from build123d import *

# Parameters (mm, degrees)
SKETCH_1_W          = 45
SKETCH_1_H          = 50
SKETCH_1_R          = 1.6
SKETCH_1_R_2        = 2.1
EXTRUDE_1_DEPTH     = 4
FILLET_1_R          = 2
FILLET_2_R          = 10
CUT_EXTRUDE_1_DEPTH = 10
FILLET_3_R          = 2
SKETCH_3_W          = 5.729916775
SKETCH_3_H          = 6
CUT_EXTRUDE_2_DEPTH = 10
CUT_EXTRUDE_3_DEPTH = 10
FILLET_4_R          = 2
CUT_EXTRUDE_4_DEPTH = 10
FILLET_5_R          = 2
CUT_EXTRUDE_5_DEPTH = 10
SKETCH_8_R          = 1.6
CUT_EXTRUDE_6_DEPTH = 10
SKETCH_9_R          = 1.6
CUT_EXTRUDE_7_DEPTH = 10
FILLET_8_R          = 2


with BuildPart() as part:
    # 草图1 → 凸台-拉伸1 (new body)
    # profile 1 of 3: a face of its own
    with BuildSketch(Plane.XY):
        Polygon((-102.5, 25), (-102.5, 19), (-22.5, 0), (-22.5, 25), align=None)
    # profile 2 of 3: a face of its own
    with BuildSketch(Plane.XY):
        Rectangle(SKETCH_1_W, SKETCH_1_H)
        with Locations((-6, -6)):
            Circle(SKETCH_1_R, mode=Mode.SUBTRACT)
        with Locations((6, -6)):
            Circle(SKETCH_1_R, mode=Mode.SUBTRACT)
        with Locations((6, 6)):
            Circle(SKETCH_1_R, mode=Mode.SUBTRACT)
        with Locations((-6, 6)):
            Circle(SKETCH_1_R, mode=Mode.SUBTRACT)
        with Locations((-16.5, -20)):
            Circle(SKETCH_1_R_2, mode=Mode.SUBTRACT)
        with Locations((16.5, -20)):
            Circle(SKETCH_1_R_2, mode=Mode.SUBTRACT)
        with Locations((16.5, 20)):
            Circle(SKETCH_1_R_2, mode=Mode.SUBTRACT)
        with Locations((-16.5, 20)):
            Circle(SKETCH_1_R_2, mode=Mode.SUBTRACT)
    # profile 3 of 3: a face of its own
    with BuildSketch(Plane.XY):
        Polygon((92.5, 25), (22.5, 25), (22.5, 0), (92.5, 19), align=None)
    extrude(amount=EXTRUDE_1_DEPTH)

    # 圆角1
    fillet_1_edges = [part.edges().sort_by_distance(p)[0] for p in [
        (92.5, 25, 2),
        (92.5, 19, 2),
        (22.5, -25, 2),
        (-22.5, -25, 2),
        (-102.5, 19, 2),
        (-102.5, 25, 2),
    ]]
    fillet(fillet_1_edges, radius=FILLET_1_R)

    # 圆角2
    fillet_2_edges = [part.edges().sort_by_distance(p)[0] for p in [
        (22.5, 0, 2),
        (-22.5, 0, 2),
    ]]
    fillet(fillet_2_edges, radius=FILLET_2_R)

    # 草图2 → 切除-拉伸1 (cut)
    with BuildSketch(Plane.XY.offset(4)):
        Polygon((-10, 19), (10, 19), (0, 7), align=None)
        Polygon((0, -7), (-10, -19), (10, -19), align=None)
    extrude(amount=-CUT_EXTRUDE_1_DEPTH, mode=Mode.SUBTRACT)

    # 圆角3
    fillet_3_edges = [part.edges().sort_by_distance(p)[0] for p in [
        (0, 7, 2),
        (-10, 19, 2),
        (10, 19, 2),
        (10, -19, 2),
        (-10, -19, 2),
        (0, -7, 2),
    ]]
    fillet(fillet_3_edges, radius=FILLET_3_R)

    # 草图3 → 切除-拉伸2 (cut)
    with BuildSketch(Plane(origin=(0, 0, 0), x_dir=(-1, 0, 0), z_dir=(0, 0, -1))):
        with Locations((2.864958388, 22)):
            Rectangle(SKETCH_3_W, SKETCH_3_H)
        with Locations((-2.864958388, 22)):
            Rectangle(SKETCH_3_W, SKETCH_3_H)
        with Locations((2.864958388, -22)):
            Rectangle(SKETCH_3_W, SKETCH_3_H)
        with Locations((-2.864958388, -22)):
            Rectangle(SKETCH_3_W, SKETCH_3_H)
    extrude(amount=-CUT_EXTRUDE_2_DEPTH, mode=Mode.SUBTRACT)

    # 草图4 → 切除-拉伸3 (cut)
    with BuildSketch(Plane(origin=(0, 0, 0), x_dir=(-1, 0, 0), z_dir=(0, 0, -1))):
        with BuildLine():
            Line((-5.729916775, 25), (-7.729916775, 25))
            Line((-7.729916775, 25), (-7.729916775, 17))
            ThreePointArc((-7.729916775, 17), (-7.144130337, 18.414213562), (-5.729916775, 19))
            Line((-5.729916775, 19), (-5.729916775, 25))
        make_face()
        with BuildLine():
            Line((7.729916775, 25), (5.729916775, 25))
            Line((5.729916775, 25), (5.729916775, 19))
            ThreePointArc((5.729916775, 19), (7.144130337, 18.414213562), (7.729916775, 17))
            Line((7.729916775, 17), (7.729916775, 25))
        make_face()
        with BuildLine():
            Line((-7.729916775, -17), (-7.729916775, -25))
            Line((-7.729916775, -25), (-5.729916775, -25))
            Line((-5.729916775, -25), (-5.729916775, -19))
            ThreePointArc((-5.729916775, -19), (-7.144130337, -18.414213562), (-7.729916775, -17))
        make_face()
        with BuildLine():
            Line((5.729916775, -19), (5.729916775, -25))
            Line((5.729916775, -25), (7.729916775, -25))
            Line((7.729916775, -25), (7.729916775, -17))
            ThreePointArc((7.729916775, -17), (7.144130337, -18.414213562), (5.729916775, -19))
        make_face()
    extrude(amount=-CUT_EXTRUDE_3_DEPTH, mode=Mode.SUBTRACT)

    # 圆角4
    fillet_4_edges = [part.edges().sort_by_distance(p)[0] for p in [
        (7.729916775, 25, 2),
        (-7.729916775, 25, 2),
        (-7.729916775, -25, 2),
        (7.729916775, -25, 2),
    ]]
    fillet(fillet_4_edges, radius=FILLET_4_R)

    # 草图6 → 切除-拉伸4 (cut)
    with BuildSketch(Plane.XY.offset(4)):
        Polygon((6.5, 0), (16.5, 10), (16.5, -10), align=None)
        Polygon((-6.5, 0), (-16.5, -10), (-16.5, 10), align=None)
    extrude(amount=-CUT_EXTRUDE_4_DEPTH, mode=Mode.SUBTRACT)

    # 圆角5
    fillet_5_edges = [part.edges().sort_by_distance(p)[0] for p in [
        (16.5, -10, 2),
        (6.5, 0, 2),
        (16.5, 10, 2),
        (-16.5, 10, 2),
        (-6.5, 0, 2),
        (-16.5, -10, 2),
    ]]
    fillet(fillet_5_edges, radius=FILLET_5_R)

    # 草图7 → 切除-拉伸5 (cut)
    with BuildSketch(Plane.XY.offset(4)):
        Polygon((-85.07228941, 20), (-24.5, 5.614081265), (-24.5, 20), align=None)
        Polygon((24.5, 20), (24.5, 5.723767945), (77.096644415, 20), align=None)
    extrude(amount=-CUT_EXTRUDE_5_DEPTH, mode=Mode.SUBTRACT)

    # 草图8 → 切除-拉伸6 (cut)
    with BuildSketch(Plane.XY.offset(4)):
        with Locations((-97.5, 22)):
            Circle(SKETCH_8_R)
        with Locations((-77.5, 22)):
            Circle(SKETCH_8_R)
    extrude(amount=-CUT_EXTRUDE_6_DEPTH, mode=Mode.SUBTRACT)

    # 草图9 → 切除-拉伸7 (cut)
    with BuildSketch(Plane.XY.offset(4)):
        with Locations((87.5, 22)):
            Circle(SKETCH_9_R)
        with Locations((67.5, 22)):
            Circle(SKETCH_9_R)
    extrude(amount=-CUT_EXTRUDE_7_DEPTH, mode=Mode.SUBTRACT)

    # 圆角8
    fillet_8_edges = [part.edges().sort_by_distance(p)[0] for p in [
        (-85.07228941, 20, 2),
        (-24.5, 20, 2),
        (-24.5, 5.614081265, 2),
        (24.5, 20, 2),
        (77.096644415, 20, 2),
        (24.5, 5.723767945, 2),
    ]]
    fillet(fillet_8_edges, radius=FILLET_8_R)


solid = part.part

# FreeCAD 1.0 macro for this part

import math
import FreeCAD as App
import Part
import Sketcher


def edges_at(feature, points):
    """Names of the edges that pass closest to the given points."""
    edges = feature.Shape.Edges
    near = lambda p: min(range(len(edges)), key=lambda i: edges[i].distToShape(Part.Vertex(*p))[0])
    return sorted({f"Edge{near(p) + 1}" for p in points})

doc = App.newDocument("Part")
body = doc.addObject("PartDesign::Body", "Body")

# Sketch on XY plane
sketch1 = doc.addObject("Sketcher::SketchObject", "Sketch")
body.addObject(sketch1)
sketch1.AttachmentSupport = (doc.XY_Plane, [""])
sketch1.MapMode = "FlatFace"
sketch1.addGeometry([
    Part.LineSegment(App.Vector(-102.5, 25, 0), App.Vector(-102.5, 19, 0)),  # 0
    Part.LineSegment(App.Vector(-102.5, 19, 0), App.Vector(-22.5, 0, 0)),  # 1
    Part.LineSegment(App.Vector(-22.5, 0, 0), App.Vector(-22.5, -25, 0)),  # 2
    Part.LineSegment(App.Vector(-22.5, -25, 0), App.Vector(22.5, -25, 0)),  # 3
    Part.LineSegment(App.Vector(22.5, -25, 0), App.Vector(22.5, 0, 0)),  # 4
    Part.LineSegment(App.Vector(22.5, 0, 0), App.Vector(92.5, 19, 0)),  # 5
    Part.LineSegment(App.Vector(92.5, 19, 0), App.Vector(92.5, 25, 0)),  # 6
    Part.LineSegment(App.Vector(92.5, 25, 0), App.Vector(-102.5, 25, 0)),  # 7
    Part.Circle(App.Vector(16.5, 20, 0), App.Vector(0, 0, 1), 2.1),  # 8
    Part.Circle(App.Vector(-16.5, -20, 0), App.Vector(0, 0, 1), 2.1),  # 9
    Part.Circle(App.Vector(-6, -6, 0), App.Vector(0, 0, 1), 1.6),  # 10
    Part.Circle(App.Vector(16.5, -20, 0), App.Vector(0, 0, 1), 2.1),  # 11
    Part.Circle(App.Vector(6, -6, 0), App.Vector(0, 0, 1), 1.6),  # 12
    Part.Circle(App.Vector(-6, 6, 0), App.Vector(0, 0, 1), 1.6),  # 13
    Part.Circle(App.Vector(-16.5, 20, 0), App.Vector(0, 0, 1), 2.1),  # 14
    Part.Circle(App.Vector(6, 6, 0), App.Vector(0, 0, 1), 1.6),  # 15
], False)
sketch1.addConstraint([
    Sketcher.Constraint("Coincident", 0, 2, 1, 1),
    Sketcher.Constraint("Coincident", 1, 2, 2, 1),
    Sketcher.Constraint("Coincident", 2, 2, 3, 1),
    Sketcher.Constraint("Coincident", 3, 2, 4, 1),
    Sketcher.Constraint("Coincident", 4, 2, 5, 1),
    Sketcher.Constraint("Coincident", 5, 2, 6, 1),
    Sketcher.Constraint("Coincident", 6, 2, 7, 1),
    Sketcher.Constraint("Coincident", 7, 2, 0, 1),
    Sketcher.Constraint("Vertical", 0),
    Sketcher.Constraint("Vertical", 2),
    Sketcher.Constraint("Horizontal", 3),
    Sketcher.Constraint("Vertical", 4),
    Sketcher.Constraint("Vertical", 6),
    Sketcher.Constraint("Horizontal", 7),
    Sketcher.Constraint("Equal", 8, 9),
    Sketcher.Constraint("Equal", 9, 11),
    Sketcher.Constraint("Equal", 10, 12),
    Sketcher.Constraint("Equal", 12, 13),
    Sketcher.Constraint("Equal", 11, 14),
    Sketcher.Constraint("Equal", 13, 15),
    Sketcher.Constraint("Symmetric", 8, 3, 9, 3, -1, 1),
    Sketcher.Constraint("Symmetric", 12, 3, 13, 3, -1, 1),
    Sketcher.Constraint("Symmetric", 11, 3, 14, 3, -1, 1),
    Sketcher.Constraint("Symmetric", 10, 3, 15, 3, -1, 1),
    Sketcher.Constraint("Symmetric", 1, 2, 4, 2, -1, 1),
    Sketcher.Constraint("Symmetric", 9, 3, 11, 3, -2),
    Sketcher.Constraint("Symmetric", 10, 3, 12, 3, -2),
    Sketcher.Constraint("PointOnObject", 1, 2, -1),
    Sketcher.Constraint("Horizontal", 0, 2, 5, 2),
    Sketcher.Constraint("Diameter", 8, 4.2),
    Sketcher.Constraint("Diameter", 10, 3.2),
    Sketcher.Constraint("DistanceX", 3, 1, 3, 2, 45.0),
    Sketcher.Constraint("DistanceX", 7, 2, 7, 1, 195.0),
    Sketcher.Constraint("DistanceY", 0, 2, 0, 1, 6.0),
    Sketcher.Constraint("DistanceY", 2, 2, 2, 1, 25.0),
    Sketcher.Constraint("DistanceY", -1, 1, 8, 3, 20.0),
    Sketcher.Constraint("DistanceX", 10, 3, -1, 1, 6.0),
    Sketcher.Constraint("DistanceY", 10, 3, -1, 1, 6.0),
    Sketcher.Constraint("DistanceY", -1, 1, 0, 2, 19.0),
    Sketcher.Constraint("DistanceX", 9, 3, 8, 3, 33.0),
    Sketcher.Constraint("DistanceX", 0, 2, 14, 3, 86.0),
])
pad1 = doc.addObject("PartDesign::Pad", "Pad")
body.addObject(pad1)
pad1.Profile = sketch1
pad1.Length = 4
doc.recompute()

fillet = doc.addObject("PartDesign::Fillet", "Fillet")
body.addObject(fillet)
fillet.Base = (pad1, edges_at(pad1, [
    (92.5, 25, 2),
    (92.5, 19, 2),
    (22.5, -25, 2),
    (-22.5, -25, 2),
    (-102.5, 19, 2),
    (-102.5, 25, 2),
]))
fillet.Radius = 2
doc.recompute()

fillet2 = doc.addObject("PartDesign::Fillet", "Fillet001")
body.addObject(fillet2)
fillet2.Base = (fillet, edges_at(fillet, [(22.5, 0, 2), (-22.5, 0, 2)]))
fillet2.Radius = 10

# Sketch on XY plane
sketch2 = doc.addObject("Sketcher::SketchObject", "Sketch001")
body.addObject(sketch2)
sketch2.AttachmentSupport = (doc.XY_Plane, [""])
sketch2.MapMode = "FlatFace"
sketch2.AttachmentOffset = App.Placement(App.Vector(0, 0, 4), App.Rotation())
sketch2.addGeometry([
    Part.LineSegment(App.Vector(10, 19, 0), App.Vector(-10, 19, 0)),  # 0
    Part.LineSegment(App.Vector(-10, 19, 0), App.Vector(0, 7, 0)),  # 1
    Part.LineSegment(App.Vector(0, 7, 0), App.Vector(10, 19, 0)),  # 2
    Part.LineSegment(App.Vector(0, -7, 0), App.Vector(-10, -19, 0)),  # 3
    Part.LineSegment(App.Vector(-10, -19, 0), App.Vector(10, -19, 0)),  # 4
    Part.LineSegment(App.Vector(10, -19, 0), App.Vector(0, -7, 0)),  # 5
], False)
sketch2.addConstraint([
    Sketcher.Constraint("Coincident", 0, 2, 1, 1),
    Sketcher.Constraint("Coincident", 1, 2, 2, 1),
    Sketcher.Constraint("Coincident", 2, 2, 0, 1),
    Sketcher.Constraint("Coincident", 3, 2, 4, 1),
    Sketcher.Constraint("Coincident", 4, 2, 5, 1),
    Sketcher.Constraint("Coincident", 5, 2, 3, 1),
    Sketcher.Constraint("Horizontal", 0),
    Sketcher.Constraint("Horizontal", 4),
    Sketcher.Constraint("Symmetric", 2, 2, 3, 2, -1, 1),
    Sketcher.Constraint("Symmetric", 1, 2, 5, 2, -1, 1),
    Sketcher.Constraint("PointOnObject", 1, 2, -2),
    Sketcher.Constraint("Parallel", 1, 5),
    Sketcher.Constraint("Vertical", 0, 2, 3, 2),
    Sketcher.Constraint("DistanceX", 0, 2, 0, 1, 20.0),
    Sketcher.Constraint("DistanceY", -1, 1, 0, 2, 19.0),
    Sketcher.Constraint("DistanceY", -1, 1, 1, 2, 7.0),
])
pocket1 = doc.addObject("PartDesign::Pocket", "Pocket")
body.addObject(pocket1)
pocket1.Profile = sketch2
pocket1.Length = 10
doc.recompute()

fillet3 = doc.addObject("PartDesign::Fillet", "Fillet002")
body.addObject(fillet3)
fillet3.Base = (pocket1, edges_at(pocket1, [
    (0, 7, 2),
    (-10, 19, 2),
    (10, 19, 2),
    (10, -19, 2),
    (-10, -19, 2),
    (0, -7, 2),
]))
fillet3.Radius = 2

# Sketch on XY plane
sketch3 = doc.addObject("Sketcher::SketchObject", "Sketch002")
body.addObject(sketch3)
sketch3.AttachmentSupport = (doc.XY_Plane, [""])
sketch3.MapMode = "FlatFace"
sketch3.addGeometry([
    Part.LineSegment(App.Vector(-5.729917, 19, 0), App.Vector(-5.729917, 25, 0)),  # 0
    Part.LineSegment(App.Vector(-5.729917, 25, 0), App.Vector(5.729917, 25, 0)),  # 1
    Part.LineSegment(App.Vector(5.729917, 25, 0), App.Vector(5.729917, 19, 0)),  # 2
    Part.LineSegment(App.Vector(5.729917, 19, 0), App.Vector(-5.729917, 19, 0)),  # 3
    Part.LineSegment(App.Vector(-5.729917, -25, 0), App.Vector(-5.729917, -19, 0)),  # 4
    Part.LineSegment(App.Vector(-5.729917, -19, 0), App.Vector(5.729917, -19, 0)),  # 5
    Part.LineSegment(App.Vector(5.729917, -19, 0), App.Vector(5.729917, -25, 0)),  # 6
    Part.LineSegment(App.Vector(5.729917, -25, 0), App.Vector(-5.729917, -25, 0)),  # 7
], False)
sketch3.addConstraint([
    Sketcher.Constraint("Coincident", 0, 2, 1, 1),
    Sketcher.Constraint("Coincident", 1, 2, 2, 1),
    Sketcher.Constraint("Coincident", 2, 2, 3, 1),
    Sketcher.Constraint("Coincident", 3, 2, 0, 1),
    Sketcher.Constraint("Coincident", 4, 2, 5, 1),
    Sketcher.Constraint("Coincident", 5, 2, 6, 1),
    Sketcher.Constraint("Coincident", 6, 2, 7, 1),
    Sketcher.Constraint("Coincident", 7, 2, 4, 1),
    Sketcher.Constraint("Vertical", 0),
    Sketcher.Constraint("Horizontal", 1),
    Sketcher.Constraint("Vertical", 2),
    Sketcher.Constraint("Horizontal", 3),
    Sketcher.Constraint("Vertical", 4),
    Sketcher.Constraint("Horizontal", 5),
    Sketcher.Constraint("Vertical", 6),
    Sketcher.Constraint("Horizontal", 7),
    Sketcher.Constraint("Symmetric", 2, 2, 4, 2, -1, 1),
    Sketcher.Constraint("Symmetric", 0, 2, 6, 2, -1, 1),
    Sketcher.Constraint("Vertical", 3, 2, 4, 2),
    Sketcher.Constraint("DistanceY", 0, 1, 0, 2, 6.0),
    Sketcher.Constraint("DistanceY", -1, 1, 0, 2, 25.0),
    Sketcher.Constraint("DistanceX", 1, 1, 1, 2, 11.459834),
])
pocket2 = doc.addObject("PartDesign::Pocket", "Pocket001")
body.addObject(pocket2)
pocket2.Profile = sketch3
pocket2.Length = 10
pocket2.Reversed = True

# Sketch on XY plane
sketch4 = doc.addObject("Sketcher::SketchObject", "Sketch003")
body.addObject(sketch4)
sketch4.AttachmentSupport = (doc.XY_Plane, [""])
sketch4.MapMode = "FlatFace"
sketch4.addGeometry([
    Part.LineSegment(App.Vector(5.729917, 25, 0), App.Vector(7.729917, 25, 0)),  # 0
    Part.LineSegment(App.Vector(7.729917, 25, 0), App.Vector(7.729917, 17, 0)),  # 1
    Part.ArcOfCircle(Part.Circle(App.Vector(5.729917, 17, 0), App.Vector(0, 0, 1), 2), math.radians(0), math.radians(90)),  # 2
    Part.LineSegment(App.Vector(5.729917, 19, 0), App.Vector(5.729917, 25, 0)),  # 3
    Part.LineSegment(App.Vector(-7.729917, 25, 0), App.Vector(-5.729917, 25, 0)),  # 4
    Part.LineSegment(App.Vector(-5.729917, 25, 0), App.Vector(-5.729917, 19, 0)),  # 5
    Part.ArcOfCircle(Part.Circle(App.Vector(-5.729917, 17, 0), App.Vector(0, 0, 1), 2), math.radians(90), math.radians(180)),  # 6
    Part.LineSegment(App.Vector(-7.729917, 17, 0), App.Vector(-7.729917, 25, 0)),  # 7
    Part.LineSegment(App.Vector(7.729917, -17, 0), App.Vector(7.729917, -25, 0)),  # 8
    Part.LineSegment(App.Vector(7.729917, -25, 0), App.Vector(5.729917, -25, 0)),  # 9
    Part.LineSegment(App.Vector(5.729917, -25, 0), App.Vector(5.729917, -19, 0)),  # 10
    Part.ArcOfCircle(Part.Circle(App.Vector(5.729917, -17, 0), App.Vector(0, 0, 1), 2), math.radians(-90), math.radians(0)),  # 11
    Part.LineSegment(App.Vector(-5.729917, -19, 0), App.Vector(-5.729917, -25, 0)),  # 12
    Part.LineSegment(App.Vector(-5.729917, -25, 0), App.Vector(-7.729917, -25, 0)),  # 13
    Part.LineSegment(App.Vector(-7.729917, -25, 0), App.Vector(-7.729917, -17, 0)),  # 14
    Part.ArcOfCircle(Part.Circle(App.Vector(-5.729917, -17, 0), App.Vector(0, 0, 1), 2), math.radians(-180), math.radians(-90)),  # 15
], False)
sketch4.addConstraint([
    Sketcher.Constraint("Coincident", 0, 2, 1, 1),
    Sketcher.Constraint("Tangent", 1, 2, 2, 1),
    Sketcher.Constraint("Coincident", 2, 2, 3, 1),
    Sketcher.Constraint("Coincident", 3, 2, 0, 1),
    Sketcher.Constraint("Coincident", 4, 2, 5, 1),
    Sketcher.Constraint("Coincident", 5, 2, 6, 1),
    Sketcher.Constraint("Tangent", 6, 2, 7, 1),
    Sketcher.Constraint("Coincident", 7, 2, 4, 1),
    Sketcher.Constraint("Coincident", 8, 2, 9, 1),
    Sketcher.Constraint("Coincident", 9, 2, 10, 1),
    Sketcher.Constraint("Coincident", 10, 2, 11, 1),
    Sketcher.Constraint("Tangent", 11, 2, 8, 1),
    Sketcher.Constraint("Coincident", 12, 2, 13, 1),
    Sketcher.Constraint("Coincident", 13, 2, 14, 1),
    Sketcher.Constraint("Tangent", 14, 2, 15, 1),
    Sketcher.Constraint("Coincident", 15, 2, 12, 1),
    Sketcher.Constraint("Horizontal", 0),
    Sketcher.Constraint("Vertical", 1),
    Sketcher.Constraint("Vertical", 3),
    Sketcher.Constraint("Horizontal", 4),
    Sketcher.Constraint("Vertical", 5),
    Sketcher.Constraint("Vertical", 7),
    Sketcher.Constraint("Vertical", 8),
    Sketcher.Constraint("Horizontal", 9),
    Sketcher.Constraint("Vertical", 10),
    Sketcher.Constraint("Vertical", 12),
    Sketcher.Constraint("Horizontal", 13),
    Sketcher.Constraint("Vertical", 14),
    Sketcher.Constraint("Equal", 2, 6),
    Sketcher.Constraint("Equal", 6, 11),
    Sketcher.Constraint("Equal", 11, 15),
    Sketcher.Constraint("Symmetric", 6, 3, 11, 3, -1, 1),
    Sketcher.Constraint("Symmetric", 2, 3, 15, 3, -1, 1),
    Sketcher.Constraint("Symmetric", 4, 2, 9, 2, -1, 1),
    Sketcher.Constraint("Symmetric", 3, 2, 12, 2, -1, 1),
    Sketcher.Constraint("Symmetric", 2, 3, 6, 3, -2),
    Sketcher.Constraint("Symmetric", 3, 2, 4, 2, -2),
    Sketcher.Constraint("Vertical", 11, 3, 2, 2),
    Sketcher.Constraint("Radius", 2, 2.0),
    Sketcher.Constraint("DistanceY", 1, 2, 1, 1, 8.0),
    Sketcher.Constraint("DistanceY", -1, 1, 2, 3, 17.0),
    Sketcher.Constraint("DistanceX", -1, 1, 2, 3, 5.729917),
])
pocket3 = doc.addObject("PartDesign::Pocket", "Pocket002")
body.addObject(pocket3)
pocket3.Profile = sketch4
pocket3.Length = 10
pocket3.Reversed = True
doc.recompute()

fillet4 = doc.addObject("PartDesign::Fillet", "Fillet003")
body.addObject(fillet4)
fillet4.Base = (pocket3, edges_at(pocket3, [
    (7.73, 25, 2),
    (-7.73, 25, 2),
    (-7.73, -25, 2),
    (7.73, -25, 2),
]))
fillet4.Radius = 2

# Sketch on XY plane
sketch5 = doc.addObject("Sketcher::SketchObject", "Sketch004")
body.addObject(sketch5)
sketch5.AttachmentSupport = (doc.XY_Plane, [""])
sketch5.MapMode = "FlatFace"
sketch5.AttachmentOffset = App.Placement(App.Vector(0, 0, 4), App.Rotation())
sketch5.addGeometry([
    Part.LineSegment(App.Vector(16.5, 10, 0), App.Vector(6.5, 0, 0)),  # 0
    Part.LineSegment(App.Vector(6.5, 0, 0), App.Vector(16.5, -10, 0)),  # 1
    Part.LineSegment(App.Vector(16.5, -10, 0), App.Vector(16.5, 10, 0)),  # 2
    Part.LineSegment(App.Vector(-16.5, -10, 0), App.Vector(-6.5, 0, 0)),  # 3
    Part.LineSegment(App.Vector(-6.5, 0, 0), App.Vector(-16.5, 10, 0)),  # 4
    Part.LineSegment(App.Vector(-16.5, 10, 0), App.Vector(-16.5, -10, 0)),  # 5
], False)
sketch5.addConstraint([
    Sketcher.Constraint("Coincident", 0, 2, 1, 1),
    Sketcher.Constraint("Coincident", 1, 2, 2, 1),
    Sketcher.Constraint("Coincident", 2, 2, 0, 1),
    Sketcher.Constraint("Coincident", 3, 2, 4, 1),
    Sketcher.Constraint("Coincident", 4, 2, 5, 1),
    Sketcher.Constraint("Coincident", 5, 2, 3, 1),
    Sketcher.Constraint("Vertical", 2),
    Sketcher.Constraint("Vertical", 5),
    Sketcher.Constraint("Symmetric", 0, 2, 3, 2, -1, 1),
    Sketcher.Constraint("Symmetric", 1, 2, 4, 2, -1, 1),
    Sketcher.Constraint("PointOnObject", 0, 2, -1),
    Sketcher.Constraint("Perpendicular", 0, 1),
    Sketcher.Constraint("Perpendicular", 1, 3),
    Sketcher.Constraint("Horizontal", 2, 2, 4, 2),
    Sketcher.Constraint("DistanceY", 2, 1, 2, 2, 20.0),
    Sketcher.Constraint("DistanceX", 3, 2, 0, 2, 13.0),
])
pocket4 = doc.addObject("PartDesign::Pocket", "Pocket003")
body.addObject(pocket4)
pocket4.Profile = sketch5
pocket4.Length = 10
doc.recompute()

fillet5 = doc.addObject("PartDesign::Fillet", "Fillet004")
body.addObject(fillet5)
fillet5.Base = (pocket4, edges_at(pocket4, [
    (16.5, -10, 2),
    (6.5, 0, 2),
    (16.5, 10, 2),
    (-16.5, 10, 2),
    (-6.5, 0, 2),
    (-16.5, -10, 2),
]))
fillet5.Radius = 2

# Sketch on XY plane
sketch6 = doc.addObject("Sketcher::SketchObject", "Sketch005")
body.addObject(sketch6)
sketch6.AttachmentSupport = (doc.XY_Plane, [""])
sketch6.MapMode = "FlatFace"
sketch6.AttachmentOffset = App.Placement(App.Vector(0, 0, 4), App.Rotation())
sketch6.addGeometry([
    Part.LineSegment(App.Vector(-85.072289, 20, 0), App.Vector(-24.5, 5.614081, 0)),  # 0
    Part.LineSegment(App.Vector(-24.5, 5.614081, 0), App.Vector(-24.5, 20, 0)),  # 1
    Part.LineSegment(App.Vector(-24.5, 20, 0), App.Vector(-85.072289, 20, 0)),  # 2
    Part.LineSegment(App.Vector(24.5, 20, 0), App.Vector(24.5, 5.723768, 0)),  # 3
    Part.LineSegment(App.Vector(24.5, 5.723768, 0), App.Vector(77.096644, 20, 0)),  # 4
    Part.LineSegment(App.Vector(77.096644, 20, 0), App.Vector(24.5, 20, 0)),  # 5
], False)
sketch6.addConstraint([
    Sketcher.Constraint("Coincident", 0, 2, 1, 1),
    Sketcher.Constraint("Coincident", 1, 2, 2, 1),
    Sketcher.Constraint("Coincident", 2, 2, 0, 1),
    Sketcher.Constraint("Coincident", 3, 2, 4, 1),
    Sketcher.Constraint("Coincident", 4, 2, 5, 1),
    Sketcher.Constraint("Coincident", 5, 2, 3, 1),
    Sketcher.Constraint("Vertical", 1),
    Sketcher.Constraint("Horizontal", 2),
    Sketcher.Constraint("Vertical", 3),
    Sketcher.Constraint("Horizontal", 5),
    Sketcher.Constraint("Symmetric", 1, 2, 5, 2, -2),
    Sketcher.Constraint("DistanceY", -1, 1, 1, 2, 20.0),
    Sketcher.Constraint("DistanceX", 0, 2, 3, 2, 49.0),
    Sketcher.Constraint("DistanceX", 2, 2, 2, 1, 60.572289),
    Sketcher.Constraint("DistanceY", 1, 1, 1, 2, 14.385919),
    Sketcher.Constraint("DistanceX", 5, 2, 5, 1, 52.596644),
    Sketcher.Constraint("DistanceY", 3, 2, 3, 1, 14.276232),
])
pocket5 = doc.addObject("PartDesign::Pocket", "Pocket004")
body.addObject(pocket5)
pocket5.Profile = sketch6
pocket5.Length = 10

# Sketch on XY plane
sketch7 = doc.addObject("Sketcher::SketchObject", "Sketch006")
body.addObject(sketch7)
sketch7.AttachmentSupport = (doc.XY_Plane, [""])
sketch7.MapMode = "FlatFace"
sketch7.AttachmentOffset = App.Placement(App.Vector(0, 0, 4), App.Rotation())
sketch7.addGeometry([
    Part.Circle(App.Vector(-97.5, 22, 0), App.Vector(0, 0, 1), 1.6),
    Part.Circle(App.Vector(-77.5, 22, 0), App.Vector(0, 0, 1), 1.6),
], False)
sketch7.addConstraint([
    Sketcher.Constraint("Equal", 0, 1),
    Sketcher.Constraint("Horizontal", 0, 3, 1, 3),
    Sketcher.Constraint("Diameter", 0, 3.2),
    Sketcher.Constraint("DistanceY", -1, 1, 0, 3, 22.0),
    Sketcher.Constraint("DistanceX", 0, 3, 1, 3, 20.0),
    Sketcher.Constraint("DistanceX", 0, 3, -1, 1, 97.5),
])
pocket6 = doc.addObject("PartDesign::Pocket", "Pocket005")
body.addObject(pocket6)
pocket6.Profile = sketch7
pocket6.Length = 10

# Sketch on XY plane
sketch8 = doc.addObject("Sketcher::SketchObject", "Sketch007")
body.addObject(sketch8)
sketch8.AttachmentSupport = (doc.XY_Plane, [""])
sketch8.MapMode = "FlatFace"
sketch8.AttachmentOffset = App.Placement(App.Vector(0, 0, 4), App.Rotation())
sketch8.addGeometry([
    Part.Circle(App.Vector(87.5, 22, 0), App.Vector(0, 0, 1), 1.6),
    Part.Circle(App.Vector(67.5, 22, 0), App.Vector(0, 0, 1), 1.6),
], False)
sketch8.addConstraint([
    Sketcher.Constraint("Equal", 0, 1),
    Sketcher.Constraint("Horizontal", 0, 3, 1, 3),
    Sketcher.Constraint("Diameter", 0, 3.2),
    Sketcher.Constraint("DistanceY", -1, 1, 0, 3, 22.0),
    Sketcher.Constraint("DistanceX", 1, 3, 0, 3, 20.0),
    Sketcher.Constraint("DistanceX", -1, 1, 0, 3, 87.5),
])
pocket7 = doc.addObject("PartDesign::Pocket", "Pocket006")
body.addObject(pocket7)
pocket7.Profile = sketch8
pocket7.Length = 10
doc.recompute()

fillet6 = doc.addObject("PartDesign::Fillet", "Fillet005")
body.addObject(fillet6)
fillet6.Base = (pocket7, edges_at(pocket7, [
    (-85.072, 20, 2),
    (-24.5, 20, 2),
    (-24.5, 5.614, 2),
    (24.5, 20, 2),
    (77.097, 20, 2),
    (24.5, 5.724, 2),
]))
fillet6.Radius = 2

doc.recompute()
